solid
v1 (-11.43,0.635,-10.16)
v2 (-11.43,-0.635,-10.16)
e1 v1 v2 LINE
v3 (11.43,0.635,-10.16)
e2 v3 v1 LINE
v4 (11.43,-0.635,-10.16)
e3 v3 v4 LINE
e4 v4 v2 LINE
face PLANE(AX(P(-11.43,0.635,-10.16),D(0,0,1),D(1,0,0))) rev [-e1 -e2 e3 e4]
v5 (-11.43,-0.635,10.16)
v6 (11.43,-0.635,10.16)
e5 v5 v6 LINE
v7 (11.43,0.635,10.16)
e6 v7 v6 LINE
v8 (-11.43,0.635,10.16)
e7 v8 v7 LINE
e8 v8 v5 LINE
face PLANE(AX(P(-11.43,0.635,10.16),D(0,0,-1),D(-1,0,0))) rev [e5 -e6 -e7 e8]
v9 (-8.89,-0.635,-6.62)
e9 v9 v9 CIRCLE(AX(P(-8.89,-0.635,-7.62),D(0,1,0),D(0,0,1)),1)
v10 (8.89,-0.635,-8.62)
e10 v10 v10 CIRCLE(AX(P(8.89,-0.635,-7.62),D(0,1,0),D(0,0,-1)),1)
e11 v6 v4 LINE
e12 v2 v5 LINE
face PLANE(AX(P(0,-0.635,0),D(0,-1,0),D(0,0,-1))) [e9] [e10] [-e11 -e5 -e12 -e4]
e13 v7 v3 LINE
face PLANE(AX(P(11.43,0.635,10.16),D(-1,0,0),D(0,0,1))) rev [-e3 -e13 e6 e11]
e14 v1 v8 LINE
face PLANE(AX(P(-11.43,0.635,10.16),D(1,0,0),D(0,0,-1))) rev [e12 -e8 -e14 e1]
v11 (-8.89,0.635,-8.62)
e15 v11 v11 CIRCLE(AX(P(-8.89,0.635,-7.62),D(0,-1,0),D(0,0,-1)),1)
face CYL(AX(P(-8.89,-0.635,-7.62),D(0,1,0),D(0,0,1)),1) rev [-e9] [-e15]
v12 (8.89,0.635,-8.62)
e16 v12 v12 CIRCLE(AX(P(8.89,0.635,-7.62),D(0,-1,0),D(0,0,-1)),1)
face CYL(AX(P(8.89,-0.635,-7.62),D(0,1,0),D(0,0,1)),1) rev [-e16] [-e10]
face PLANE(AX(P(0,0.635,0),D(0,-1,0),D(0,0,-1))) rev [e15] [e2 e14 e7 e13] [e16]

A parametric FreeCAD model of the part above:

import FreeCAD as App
import Part
import Sketcher
Q = App.Units.Quantity

doc = App.newDocument("Part")
body = doc.addObject("PartDesign::Body", "Body")

# Sketch on XZ plane
sketch1 = body.newObject("Sketcher::SketchObject", "Sketch")
sketch1.AttachmentSupport = (doc.getObject("XZ_Plane"), [""])
sketch1.MapMode = "FlatFace"
sketch1.addGeometry([
    Part.LineSegment(App.Vector(-11, -10, 0), App.Vector(-11, 10, 0)),
    Part.LineSegment(App.Vector(-11, 10, 0), App.Vector(11, 10, 0)),
    Part.LineSegment(App.Vector(11, 10, 0), App.Vector(11, -10, 0)),
    Part.LineSegment(App.Vector(11, -10, 0), App.Vector(-11, -10, 0)),
], False)
sketch1.addConstraint([
    Sketcher.Constraint("Coincident", 0, 2, 1, 1),
    Sketcher.Constraint("Coincident", 1, 2, 2, 1),
    Sketcher.Constraint("Coincident", 2, 2, 3, 1),
    Sketcher.Constraint("Coincident", 3, 2, 0, 1),
    Sketcher.Constraint("Vertical", 0),
    Sketcher.Constraint("Horizontal", 1),
    Sketcher.Constraint("Vertical", 2),
    Sketcher.Constraint("Horizontal", 3),
    Sketcher.Constraint("Symmetric", 0, 2, 2, 2, -1, 1),
    Sketcher.Constraint("DistanceX", 1, 1, 1, 2, Q("0.9 in")),
    Sketcher.Constraint("DistanceY", 0, 1, 0, 2, Q("0.8 in")),
])
pad1 = body.newObject("PartDesign::Pad", "Pad")
pad1.Profile = sketch1
pad1.Length = Q("0.05 in")
pad1.Midplane = True

# Sketch on XZ plane
sketch2 = body.newObject("Sketcher::SketchObject", "Sketch001")
sketch2.AttachmentSupport = (doc.getObject("XZ_Plane"), [""])
sketch2.MapMode = "FlatFace"
sketch2.AttachmentOffset = App.Placement(App.Vector(0, 0, -0.025 * 25.4), App.Rotation())
sketch2.addGeometry([
    Part.Circle(App.Vector(-8.9, -7.6, 0), App.Vector(0, 0, 1), 1),
    Part.Circle(App.Vector(8.9, -7.6, 0), App.Vector(0, 0, 1), 1),
], False)
sketch2.addConstraint([
    Sketcher.Constraint("Equal", 0, 1),
    Sketcher.Constraint("Symmetric", 0, 3, 1, 3, -2),
    Sketcher.Constraint("DistanceY", 0, 3, -1, 1, Q("0.3 in")),
    Sketcher.Constraint("DistanceX", 0, 3, 1, 3, Q("0.7 in")),
    Sketcher.Constraint("Diameter", 0, Q("2 mm")),
])
pocket1 = body.newObject("PartDesign::Pocket", "Pocket")
pocket1.Profile = sketch2
pocket1.Type = "ThroughAll"
pocket1.Midplane = True

doc.recompute()
